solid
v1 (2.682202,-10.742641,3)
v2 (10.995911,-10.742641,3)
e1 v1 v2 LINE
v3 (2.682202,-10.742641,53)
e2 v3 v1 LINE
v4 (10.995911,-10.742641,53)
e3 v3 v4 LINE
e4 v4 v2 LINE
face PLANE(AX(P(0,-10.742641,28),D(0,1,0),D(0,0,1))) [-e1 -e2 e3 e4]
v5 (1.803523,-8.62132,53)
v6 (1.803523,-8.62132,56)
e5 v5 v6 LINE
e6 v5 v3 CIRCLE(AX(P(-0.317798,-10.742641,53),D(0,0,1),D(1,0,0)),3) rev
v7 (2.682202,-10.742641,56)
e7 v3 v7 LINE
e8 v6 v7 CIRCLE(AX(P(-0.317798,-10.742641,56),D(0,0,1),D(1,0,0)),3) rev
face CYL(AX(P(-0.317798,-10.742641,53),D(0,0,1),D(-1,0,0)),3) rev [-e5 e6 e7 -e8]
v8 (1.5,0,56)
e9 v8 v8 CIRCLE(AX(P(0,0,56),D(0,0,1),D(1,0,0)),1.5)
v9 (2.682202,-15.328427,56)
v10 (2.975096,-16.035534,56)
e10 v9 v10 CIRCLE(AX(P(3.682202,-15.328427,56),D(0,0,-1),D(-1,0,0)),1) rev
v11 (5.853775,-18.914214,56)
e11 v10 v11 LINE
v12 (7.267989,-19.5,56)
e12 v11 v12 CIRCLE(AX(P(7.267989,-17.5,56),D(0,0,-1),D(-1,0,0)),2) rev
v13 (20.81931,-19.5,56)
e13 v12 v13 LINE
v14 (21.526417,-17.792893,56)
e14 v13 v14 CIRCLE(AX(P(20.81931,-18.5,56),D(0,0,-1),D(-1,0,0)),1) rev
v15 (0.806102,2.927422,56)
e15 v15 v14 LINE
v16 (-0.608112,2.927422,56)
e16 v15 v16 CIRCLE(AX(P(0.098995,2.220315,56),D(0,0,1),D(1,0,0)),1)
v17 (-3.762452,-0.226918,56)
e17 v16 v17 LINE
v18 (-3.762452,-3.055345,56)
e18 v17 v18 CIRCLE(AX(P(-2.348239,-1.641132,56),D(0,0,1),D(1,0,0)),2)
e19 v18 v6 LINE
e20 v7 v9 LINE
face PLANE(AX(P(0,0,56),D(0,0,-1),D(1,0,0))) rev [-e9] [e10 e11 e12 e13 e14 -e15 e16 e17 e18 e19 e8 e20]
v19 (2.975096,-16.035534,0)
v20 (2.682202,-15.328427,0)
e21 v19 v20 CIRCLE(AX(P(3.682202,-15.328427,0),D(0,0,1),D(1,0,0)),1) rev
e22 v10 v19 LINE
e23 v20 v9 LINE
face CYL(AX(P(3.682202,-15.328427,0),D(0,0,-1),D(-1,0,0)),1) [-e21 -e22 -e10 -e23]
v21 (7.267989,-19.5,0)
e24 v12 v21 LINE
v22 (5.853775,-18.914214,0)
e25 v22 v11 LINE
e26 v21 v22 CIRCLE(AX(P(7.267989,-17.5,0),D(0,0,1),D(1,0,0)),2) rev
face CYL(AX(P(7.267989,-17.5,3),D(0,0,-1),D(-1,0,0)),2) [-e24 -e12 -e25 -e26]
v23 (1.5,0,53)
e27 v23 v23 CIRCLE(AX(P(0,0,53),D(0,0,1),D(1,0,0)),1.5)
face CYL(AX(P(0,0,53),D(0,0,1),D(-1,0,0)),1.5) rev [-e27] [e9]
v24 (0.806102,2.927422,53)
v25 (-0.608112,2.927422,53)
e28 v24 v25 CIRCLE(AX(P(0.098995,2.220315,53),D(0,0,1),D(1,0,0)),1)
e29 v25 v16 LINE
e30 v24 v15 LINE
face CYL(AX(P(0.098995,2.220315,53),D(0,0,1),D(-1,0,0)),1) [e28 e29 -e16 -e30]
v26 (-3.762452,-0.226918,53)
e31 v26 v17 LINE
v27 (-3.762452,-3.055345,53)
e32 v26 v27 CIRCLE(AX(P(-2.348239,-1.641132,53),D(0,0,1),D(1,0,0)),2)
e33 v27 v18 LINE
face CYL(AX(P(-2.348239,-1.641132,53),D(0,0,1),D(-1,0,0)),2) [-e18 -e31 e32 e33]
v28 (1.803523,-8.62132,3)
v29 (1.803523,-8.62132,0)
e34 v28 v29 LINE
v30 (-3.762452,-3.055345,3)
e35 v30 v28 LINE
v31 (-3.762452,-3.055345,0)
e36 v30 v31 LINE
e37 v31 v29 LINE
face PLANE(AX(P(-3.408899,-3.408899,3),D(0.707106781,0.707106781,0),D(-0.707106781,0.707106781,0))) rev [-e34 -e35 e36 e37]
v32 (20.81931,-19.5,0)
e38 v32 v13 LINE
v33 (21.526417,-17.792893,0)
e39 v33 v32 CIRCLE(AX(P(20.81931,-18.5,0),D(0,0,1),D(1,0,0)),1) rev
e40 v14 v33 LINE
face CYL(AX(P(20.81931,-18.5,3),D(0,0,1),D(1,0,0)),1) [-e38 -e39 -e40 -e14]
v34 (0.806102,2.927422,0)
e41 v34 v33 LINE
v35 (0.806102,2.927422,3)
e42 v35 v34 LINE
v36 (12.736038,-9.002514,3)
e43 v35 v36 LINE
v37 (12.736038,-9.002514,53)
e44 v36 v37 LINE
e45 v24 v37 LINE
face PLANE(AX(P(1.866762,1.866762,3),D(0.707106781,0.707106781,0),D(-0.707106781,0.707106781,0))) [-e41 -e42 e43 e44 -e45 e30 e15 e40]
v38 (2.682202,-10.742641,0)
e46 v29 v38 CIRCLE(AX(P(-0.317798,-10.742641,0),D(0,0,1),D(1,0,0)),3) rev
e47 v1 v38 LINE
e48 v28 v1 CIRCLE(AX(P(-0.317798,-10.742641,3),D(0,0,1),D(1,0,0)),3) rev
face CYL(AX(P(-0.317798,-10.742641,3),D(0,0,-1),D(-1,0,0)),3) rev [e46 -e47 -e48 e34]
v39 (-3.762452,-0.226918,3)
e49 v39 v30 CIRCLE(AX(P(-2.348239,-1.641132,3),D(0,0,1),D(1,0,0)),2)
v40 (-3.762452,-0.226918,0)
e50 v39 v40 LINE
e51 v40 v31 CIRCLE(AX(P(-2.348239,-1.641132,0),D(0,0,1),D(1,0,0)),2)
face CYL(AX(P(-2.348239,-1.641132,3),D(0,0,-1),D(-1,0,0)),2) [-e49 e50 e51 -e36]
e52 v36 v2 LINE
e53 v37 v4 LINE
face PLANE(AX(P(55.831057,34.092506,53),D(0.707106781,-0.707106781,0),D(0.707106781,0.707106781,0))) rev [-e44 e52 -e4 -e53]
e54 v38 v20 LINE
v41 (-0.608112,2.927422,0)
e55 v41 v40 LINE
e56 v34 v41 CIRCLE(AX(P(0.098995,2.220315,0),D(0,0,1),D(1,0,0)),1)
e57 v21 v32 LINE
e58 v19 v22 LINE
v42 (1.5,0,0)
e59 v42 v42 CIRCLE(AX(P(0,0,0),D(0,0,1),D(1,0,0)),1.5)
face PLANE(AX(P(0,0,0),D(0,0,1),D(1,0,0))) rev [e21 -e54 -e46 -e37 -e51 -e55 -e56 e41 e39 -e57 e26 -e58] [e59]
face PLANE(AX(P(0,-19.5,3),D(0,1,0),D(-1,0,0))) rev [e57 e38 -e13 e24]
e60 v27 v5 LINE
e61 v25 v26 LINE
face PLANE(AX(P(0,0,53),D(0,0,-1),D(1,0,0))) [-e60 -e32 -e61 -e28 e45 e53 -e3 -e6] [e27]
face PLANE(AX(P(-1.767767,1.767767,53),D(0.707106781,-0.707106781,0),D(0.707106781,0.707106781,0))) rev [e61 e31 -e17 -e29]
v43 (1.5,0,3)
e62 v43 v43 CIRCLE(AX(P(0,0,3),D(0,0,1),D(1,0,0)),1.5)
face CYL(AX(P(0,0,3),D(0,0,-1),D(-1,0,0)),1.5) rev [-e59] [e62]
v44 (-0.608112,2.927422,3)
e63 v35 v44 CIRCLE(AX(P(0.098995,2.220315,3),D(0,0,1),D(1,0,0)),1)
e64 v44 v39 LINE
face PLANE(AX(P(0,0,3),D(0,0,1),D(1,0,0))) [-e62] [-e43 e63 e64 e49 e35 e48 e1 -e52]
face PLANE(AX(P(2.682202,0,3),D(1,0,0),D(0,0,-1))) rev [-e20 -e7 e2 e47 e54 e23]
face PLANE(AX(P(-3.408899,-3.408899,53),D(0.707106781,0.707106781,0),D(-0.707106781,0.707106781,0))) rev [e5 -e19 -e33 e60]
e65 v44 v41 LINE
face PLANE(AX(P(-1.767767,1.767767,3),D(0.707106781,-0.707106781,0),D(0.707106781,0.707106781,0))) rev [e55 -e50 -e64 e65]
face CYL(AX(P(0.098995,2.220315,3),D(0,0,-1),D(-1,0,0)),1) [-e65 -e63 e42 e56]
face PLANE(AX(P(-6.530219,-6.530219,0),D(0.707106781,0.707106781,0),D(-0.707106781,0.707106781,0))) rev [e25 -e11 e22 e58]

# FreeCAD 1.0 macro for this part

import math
import FreeCAD as App
import Part
import Sketcher
from FreeCAD import Vector
Q = App.Units.Quantity


def edges_at(feature, points):
    """Names of the edges that pass closest to the given points."""
    edges = feature.Shape.Edges
    near = lambda p: min(range(len(edges)), key=lambda i: edges[i].distToShape(Part.Vertex(*p))[0])
    return sorted({f"Edge{near(p) + 1}" for p in points})


def add_polygon(sketch, points):
    """Adds a closed chain of lines whose ends are joined by coincident constraints."""
    first, n = sketch.GeometryCount, len(points)
    for a, b in zip(points, points[1:] + points[:1]):
        sketch.addGeometry(Part.LineSegment(App.Vector(*a, 0), App.Vector(*b, 0)), False)
    for i in range(n):
        sketch.addConstraint(Sketcher.Constraint("Coincident", first + i, 2, first + (i + 1) % n, 1))

doc = App.newDocument("Part")
params = doc.addObject("Spreadsheet::Sheet", "Params")
for row, (alias, value) in enumerate([
    ("sketch1_diameter", "3 mm"),
    ("sketch1_radius", "1 mm"),
    ("sketch1_radius2", "2 mm"),
    ("sketch1_radius3", "3 mm"),
    ("sketch1_radius4", "0.5 mm"),
    ("pad1_length", "3 mm"),
    ("sketch2_radius", "1 mm"),
    ("sketch2_radius2", "0.5 mm"),
    ("pad2_length", "25 mm"),
    ("sketch3_width", "56 mm"),
    ("fillet_radius", "2 mm"),
    ("fillet2_radius", "1 mm"),
    ("sketch4_width", "3 mm"),
    ("sketch4_width2", "56 mm"),
    ("pad3_length", "2.460911 mm"),
    ("pad4_length", "56 mm"),
    ("fillet3_radius", "1 mm"),
], start=1):
    params.set(f"A{row}", alias)
    params.set(f"B{row}", "=" + value)
    params.setAlias(f"B{row}", alias)

body = doc.addObject("PartDesign::Body", "Body")

# Sketch on XY plane
sketch1 = body.newObject("Sketcher::SketchObject", "Sketch")
sketch1.AttachmentSupport = (doc.getObject("XY_Plane"), [""])
sketch1.MapMode = "FlatFace"
sketch1.addGeometry([
    Part.ArcOfCircle(Part.Circle(Vector(3.682202, -18.5, 0), Vector(0, 0, 1), 1), math.radians(-180), math.radians(-90)),  # 0
    Part.LineSegment(Vector(3.682202, -19.5, 0), Vector(18.546163, -19.5, 0)),  # 1
    Part.ArcOfCircle(Part.Circle(Vector(18.546163, -19, 0), Vector(0, 0, 1), 0.5), math.radians(-90), math.radians(45)),  # 2
    Part.LineSegment(Vector(18.899717, -18.646447, 0), Vector(1.894402, -1.641132, 0)),  # 3
    Part.LineSegment(Vector(1.894402, -1.641132, 0), Vector(3.634529, 0.098995, 0)),  # 4
    Part.LineSegment(Vector(3.634529, 0.098995, 0), Vector(2.927422, 0.806102, 0)),  # 5
    Part.LineSegment(Vector(2.927422, 0.806102, 0), Vector(0.806102, 2.927422, 0)),  # 6
    Part.ArcOfCircle(Part.Circle(Vector(0.098995, 2.220315, 0), Vector(0, 0, 1), 1), math.radians(45), math.radians(135)),  # 7
    Part.LineSegment(Vector(-0.608112, 2.927422, 0), Vector(-3.762452, -0.226918, 0)),  # 8
    Part.ArcOfCircle(Part.Circle(Vector(-2.348239, -1.641132, 0), Vector(0, 0, 1), 2), math.radians(135), math.radians(225)),  # 9
    Part.LineSegment(Vector(-3.762452, -3.055345, 0), Vector(1.803523, -8.62132, 0)),  # 10
    Part.ArcOfCircle(Part.Circle(Vector(-0.317798, -10.742641, 0), Vector(0, 0, 1), 3), math.radians(0), math.radians(45)),  # 11
    Part.LineSegment(Vector(2.682202, -10.742641, 0), Vector(2.682202, -18.5, 0)),  # 12
    Part.Circle(Vector(0, 0, 0), Vector(0, 0, 1), 1.5),  # 13
], False)
sketch1.addConstraint([
    Sketcher.Constraint("Tangent", 0, 2, 1, 1),
    Sketcher.Constraint("Tangent", 1, 2, 2, 1),
    Sketcher.Constraint("Tangent", 2, 2, 3, 1),
    Sketcher.Constraint("Coincident", 3, 2, 4, 1),
    Sketcher.Constraint("Coincident", 4, 2, 5, 1),
    Sketcher.Constraint("Coincident", 5, 2, 6, 1),
    Sketcher.Constraint("Tangent", 6, 2, 7, 1),
    Sketcher.Constraint("Tangent", 7, 2, 8, 1),
    Sketcher.Constraint("Tangent", 8, 2, 9, 1),
    Sketcher.Constraint("Tangent", 9, 2, 10, 1),
    Sketcher.Constraint("Tangent", 10, 2, 11, 2),
    Sketcher.Constraint("Tangent", 11, 1, 12, 1),
    Sketcher.Constraint("Tangent", 12, 2, 0, 1),
    Sketcher.Constraint("Horizontal", 1),
    Sketcher.Constraint("Vertical", 12),
    Sketcher.Constraint("Coincident", 13, 3, -1, 1),
    Sketcher.Constraint("Equal", 0, 7),
    Sketcher.Constraint("Perpendicular", 3, 4),
    Sketcher.Constraint("Perpendicular", 4, 5),
    Sketcher.Constraint("Parallel", 5, 6),
    Sketcher.Constraint("Perpendicular", 6, 8),
    Sketcher.Constraint("Perpendicular", 8, 10),
    Sketcher.Constraint("Horizontal", 9, 3, 3, 2),
    Sketcher.Constraint("Horizontal", 6, 2, 7, 2),
    Sketcher.Constraint("Diameter", 13, Q("3 mm")),
    Sketcher.Constraint("Radius", 0, Q("1 mm")),
    Sketcher.Constraint("Radius", 9, Q("2 mm")),
    Sketcher.Constraint("Radius", 11, Q("3 mm")),
    Sketcher.Constraint("Radius", 2, Q("0.5 mm")),
    Sketcher.Constraint("Distance", 5, Q("1 mm")),
    Sketcher.Constraint("Distance", 6, Q("3 mm")),
    Sketcher.Constraint("DistanceY", 2, 3, -1, 1, Q("19 mm")),
    Sketcher.Constraint("DistanceX", 1, 1, 1, 2, Q("14.863961 mm")),
    Sketcher.Constraint("DistanceY", -1, 1, 5, 2, Q("0.806102 mm")),
    Sketcher.Constraint("DistanceX", -1, 1, 6, 2, Q("0.806102 mm")),
    Sketcher.Constraint("DistanceX", 11, 3, 3, 2, Q("2.2122 mm")),
])
sketch1.setExpression("Constraints[24]", "Params.sketch1_diameter")
sketch1.setExpression("Constraints[25]", "Params.sketch1_radius")
sketch1.setExpression("Constraints[26]", "Params.sketch1_radius2")
sketch1.setExpression("Constraints[27]", "Params.sketch1_radius3")
sketch1.setExpression("Constraints[28]", "Params.sketch1_radius4")
pad1 = body.newObject("PartDesign::Pad", "Pad")
pad1.Profile = sketch1
pad1.setExpression("Length", "Params.pad1_length")

# Sketch on XY plane
sketch2 = body.newObject("Sketcher::SketchObject", "Sketch001")
sketch2.AttachmentSupport = (doc.getObject("XY_Plane"), [""])
sketch2.MapMode = "FlatFace"
sketch2.AttachmentOffset = App.Placement(Vector(0, 0, 3), App.Rotation())
sketch2.addGeometry([
    Part.LineSegment(Vector(18.899717, -18.646447, 0), Vector(10.995911, -10.742641, 0)),  # 0
    Part.LineSegment(Vector(10.995911, -10.742641, 0), Vector(2.682202, -10.742641, 0)),  # 1
    Part.LineSegment(Vector(2.682202, -10.742641, 0), Vector(2.682202, -18.5, 0)),  # 2
    Part.ArcOfCircle(Part.Circle(Vector(3.682202, -18.5, 0), Vector(0, 0, 1), 1), math.radians(-180), math.radians(-90)),  # 3
    Part.LineSegment(Vector(3.682202, -19.5, 0), Vector(18.546163, -19.5, 0)),  # 4
    Part.ArcOfCircle(Part.Circle(Vector(18.546163, -19, 0), Vector(0, 0, 1), 0.5), math.radians(-90), math.radians(45)),  # 5
], False)
sketch2.addConstraint([
    Sketcher.Constraint("Coincident", 0, 2, 1, 1),
    Sketcher.Constraint("Coincident", 1, 2, 2, 1),
    Sketcher.Constraint("Tangent", 2, 2, 3, 1),
    Sketcher.Constraint("Tangent", 3, 2, 4, 1),
    Sketcher.Constraint("Tangent", 4, 2, 5, 1),
    Sketcher.Constraint("Tangent", 5, 2, 0, 1),
    Sketcher.Constraint("Horizontal", 1),
    Sketcher.Constraint("Vertical", 2),
    Sketcher.Constraint("Horizontal", 4),
    Sketcher.Constraint("Radius", 3, Q("1 mm")),
    Sketcher.Constraint("Radius", 5, Q("0.5 mm")),
    Sketcher.Constraint("Angle", 0, Q("135 deg")),
    Sketcher.Constraint("DistanceY", 5, 3, -1, 1, Q("19 mm")),
    Sketcher.Constraint("DistanceX", 1, 2, 1, 1, Q("8.313708 mm")),
    Sketcher.Constraint("DistanceX", 4, 1, 4, 2, Q("14.863961 mm")),
    Sketcher.Constraint("DistanceX", -1, 1, 0, 2, Q("10.995911 mm")),
])
sketch2.setExpression("Constraints[9]", "Params.sketch2_radius")
sketch2.setExpression("Constraints[10]", "Params.sketch2_radius2")
pad2 = body.newObject("PartDesign::Pad", "Pad001")
pad2.Profile = sketch2
pad2.setExpression("Length", "Params.pad2_length")
doc.recompute()

datumplane = body.newObject("PartDesign::Plane", "DatumPlane")
datumplane.AttachmentSupport = (doc.getObject("XY_Plane"), [""])
datumplane.MapMode = "FlatFace"
datumplane.AttachmentOffset = App.Placement(Vector(0, 0, 28), App.Rotation())
mirrored = body.newObject("PartDesign::Mirrored", "Mirrored")
mirrored.Originals = [pad1, pad2]
mirrored.MirrorPlane = (datumplane, [""])
body.Tip = mirrored

# Sketch on an angled plane
sketch3 = body.newObject("Sketcher::SketchObject", "Sketch002")
sketch3.Placement = App.Placement(Vector(-6.530219, -6.530219, 0), App.Rotation(Vector(0, 0, 1), Vector(-0.707106781, 0.707106781, 0), Vector(-0.707106781, -0.707106781, 0), "ZXY"))
add_polygon(sketch3, [(0, -13.028331), (0, -22.143804), (56, -22.143804), (56, -13.028331)])  # lines 0-3
sketch3.addConstraint([
    Sketcher.Constraint("Vertical", 0),
    Sketcher.Constraint("Horizontal", 1),
    Sketcher.Constraint("Vertical", 2),
    Sketcher.Constraint("Horizontal", 3),
    Sketcher.Constraint("PointOnObject", 0, 2, -2),
    Sketcher.Constraint("DistanceX", 1, 1, 1, 2, Q("56 mm")),
    Sketcher.Constraint("DistanceY", 0, 2, 0, 1, Q("9.115473 mm")),
    Sketcher.Constraint("DistanceY", 2, 2, -1, 1, Q("13.028331 mm")),
])
sketch3.setExpression("Constraints[9]", "Params.sketch3_width")
pocket1 = body.newObject("PartDesign::Pocket", "Pocket")
pocket1.Profile = sketch3
pocket1.Type = "ThroughAll"
pocket1.Reversed = True
doc.recompute()

fillet = body.newObject("PartDesign::Fillet", "Fillet")
fillet.Base = (pocket1, edges_at(pocket1, [(6.44, -19.5, 28)]))
fillet.setExpression("Radius", "Params.fillet_radius")
doc.recompute()

fillet2 = body.newObject("PartDesign::Fillet", "Fillet001")
fillet2.Base = (fillet, edges_at(fillet, [(2.682, -15.743, 28)]))
fillet2.setExpression("Radius", "Params.fillet2_radius")

# Sketch on an angled plane
sketch4 = body.newObject("Sketcher::SketchObject", "Sketch003")
sketch4.Placement = App.Placement(Vector(0.126635, 0.126635, 0), App.Rotation(Vector(0, 0, -1), Vector(-0.707106781, 0.707106781, 0), Vector(0.707106781, 0.707106781, 0), "ZXY"))
add_polygon(sketch4, [(-53, -2.5), (-56, -2.5), (-56, -26.549147), (0, -26.549147), (0, -2.5), (-3, -2.5), (-3, -15.371477), (-53, -15.371477)])  # lines 0-7
sketch4.addConstraint([
    Sketcher.Constraint("Horizontal", 0),
    Sketcher.Constraint("Vertical", 1),
    Sketcher.Constraint("Horizontal", 2),
    Sketcher.Constraint("Vertical", 3),
    Sketcher.Constraint("Horizontal", 4),
    Sketcher.Constraint("Vertical", 5),
    Sketcher.Constraint("Horizontal", 6),
    Sketcher.Constraint("Vertical", 7),
    Sketcher.Constraint("PointOnObject", 2, 2, -2),
    Sketcher.Constraint("Horizontal", 0, 2, 3, 2),
    Sketcher.Constraint("Equal", 0, 4),
    Sketcher.Constraint("DistanceX", 0, 2, 0, 1, Q("3 mm")),
    Sketcher.Constraint("DistanceX", 2, 1, 2, 2, Q("56 mm")),
    Sketcher.Constraint("DistanceY", 0, 2, -1, 1, Q("2.5 mm")),
    Sketcher.Constraint("DistanceY", 1, 2, 1, 1, Q("24.049147 mm")),
    Sketcher.Constraint("DistanceY", 5, 2, 5, 1, Q("12.871477 mm")),
])
sketch4.setExpression("Constraints[19]", "Params.sketch4_width")
sketch4.setExpression("Constraints[20]", "Params.sketch4_width2")
pad3 = body.newObject("PartDesign::Pad", "Pad002")
pad3.Profile = sketch4
pad3.setExpression("Length", "Params.pad3_length")

# Sketch on XY plane
sketch5 = body.newObject("Sketcher::SketchObject", "Sketch004")
sketch5.AttachmentSupport = (doc.getObject("XY_Plane"), [""])
sketch5.MapMode = "FlatFace"
add_polygon(sketch5, [(18.046163, -19.5), (20.639844, -16.90632), (23.233524, -19.5)])  # lines 0-2
sketch5.addConstraint([
    Sketcher.Constraint("Horizontal", 2),
    Sketcher.Constraint("Perpendicular", 0, 1),
    Sketcher.Constraint("Equal", 0, 1),
    Sketcher.Constraint("DistanceY", 1, 2, -1, 1, Q("19.5 mm")),
    Sketcher.Constraint("DistanceX", 2, 2, 2, 1, Q("5.18736 mm")),
    Sketcher.Constraint("DistanceX", -1, 1, 0, 2, Q("20.639844 mm")),
])
pad4 = body.newObject("PartDesign::Pad", "Pad003")
pad4.Profile = sketch5
pad4.setExpression("Length", "Params.pad4_length")
doc.recompute()

fillet3 = body.newObject("PartDesign::Fillet", "Fillet002")
fillet3.Base = (pad4, edges_at(pad4, [(23.234, -19.5, 28)]))
fillet3.setExpression("Radius", "Params.fillet3_radius")

doc.recompute()
